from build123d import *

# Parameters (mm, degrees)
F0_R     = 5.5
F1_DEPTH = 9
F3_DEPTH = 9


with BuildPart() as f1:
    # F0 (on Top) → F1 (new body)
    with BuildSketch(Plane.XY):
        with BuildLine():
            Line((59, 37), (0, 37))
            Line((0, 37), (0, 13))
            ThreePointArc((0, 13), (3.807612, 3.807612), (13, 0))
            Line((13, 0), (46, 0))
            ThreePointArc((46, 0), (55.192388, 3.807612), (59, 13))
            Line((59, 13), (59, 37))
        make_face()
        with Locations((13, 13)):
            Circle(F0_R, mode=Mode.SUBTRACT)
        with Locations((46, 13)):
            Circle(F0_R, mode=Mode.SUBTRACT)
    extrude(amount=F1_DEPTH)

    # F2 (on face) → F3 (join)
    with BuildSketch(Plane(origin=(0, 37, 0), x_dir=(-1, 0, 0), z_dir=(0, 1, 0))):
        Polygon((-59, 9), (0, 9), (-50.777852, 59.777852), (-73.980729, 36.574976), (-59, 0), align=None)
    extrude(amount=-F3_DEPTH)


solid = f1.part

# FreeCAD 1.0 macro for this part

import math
import FreeCAD as App
import Part
import Sketcher

V = App.Vector
Q = App.Units.Quantity

doc = App.newDocument("Part")
body = doc.addObject("PartDesign::Body", "Body")

sketch1 = body.newObject("Sketcher::SketchObject", "Sketch")
sketch1.AttachmentSupport = (doc.getObject("XY_Plane"), [""])
sketch1.MapMode = "FlatFace"
sketch1.addGeometry([
    Part.LineSegment(V(59, 37, 0), V(0, 37, 0)),
    Part.LineSegment(V(0, 37, 0), V(0, 13, 0)),
    Part.ArcOfCircle(Part.Circle(V(13, 13, 0), V(0, 0, 1), 13), math.radians(-180), math.radians(-90)),
    Part.LineSegment(V(13, 0, 0), V(46, 0, 0)),
    Part.ArcOfCircle(Part.Circle(V(46, 13, 0), V(0, 0, 1), 13), math.radians(-90), math.radians(0)),
    Part.LineSegment(V(59, 13, 0), V(59, 37, 0)),
    Part.Circle(V(13, 13, 0), V(0, 0, 1), 6),
    Part.Circle(V(46, 13, 0), V(0, 0, 1), 6),
], False)
sketch1.addConstraint([
    Sketcher.Constraint("Coincident", 0, 2, 1, 1),
    Sketcher.Constraint("Tangent", 1, 2, 2, 1),
    Sketcher.Constraint("Tangent", 2, 2, 3, 1),
    Sketcher.Constraint("Tangent", 3, 2, 4, 1),
    Sketcher.Constraint("Tangent", 4, 2, 5, 1),
    Sketcher.Constraint("Coincident", 5, 2, 0, 1),
    Sketcher.Constraint("Horizontal", 0),
    Sketcher.Constraint("Vertical", 1),
    Sketcher.Constraint("Horizontal", 3),
    Sketcher.Constraint("Vertical", 5),
    Sketcher.Constraint("Coincident", 6, 3, 2, 3),
    Sketcher.Constraint("Coincident", 7, 3, 4, 3),
    Sketcher.Constraint("Equal", 2, 4),
    Sketcher.Constraint("Equal", 6, 7),
    Sketcher.Constraint("PointOnObject", 0, 2, -2),
    Sketcher.Constraint("PointOnObject", 2, 2, -1),
    Sketcher.Constraint("Diameter", 6, Q("11 mm")),
    Sketcher.Constraint("Radius", 2, Q("13.000001 mm")),
    Sketcher.Constraint("DistanceX", 0, 2, 0, 1, Q("59 mm")),
    Sketcher.Constraint("DistanceY", 1, 2, 1, 1, Q("24 mm")),
])
pad1 = body.newObject("PartDesign::Pad", "Pad")
pad1.Profile = sketch1
pad1.Length = 9

sketch2 = body.newObject("Sketcher::SketchObject", "Sketch001")
sketch2.AttachmentSupport = (doc.getObject("XZ_Plane"), [""])
sketch2.MapMode = "FlatFace"
sketch2.AttachmentOffset = App.Placement(V(0, 0, -37), App.Rotation())
sketch2.addGeometry([
    Part.LineSegment(V(59, 9, 0), V(0, 9, 0)),
    Part.LineSegment(V(0, 9, 0), V(51, 60, 0)),
    Part.LineSegment(V(51, 60, 0), V(74, 37, 0)),
    Part.LineSegment(V(74, 37, 0), V(59, 0, 0)),
    Part.LineSegment(V(59, 0, 0), V(59, 9, 0)),
], False)
sketch2.addConstraint([
    Sketcher.Constraint("Coincident", 0, 2, 1, 1),
    Sketcher.Constraint("Coincident", 1, 2, 2, 1),
    Sketcher.Constraint("Coincident", 2, 2, 3, 1),
    Sketcher.Constraint("Coincident", 3, 2, 4, 1),
    Sketcher.Constraint("Coincident", 4, 2, 0, 1),
    Sketcher.Constraint("Horizontal", 0),
    Sketcher.Constraint("Vertical", 4),
    Sketcher.Constraint("PointOnObject", 0, 2, -2),
    Sketcher.Constraint("PointOnObject", 3, 2, -1),
    Sketcher.Constraint("Perpendicular", 1, 2),
    Sketcher.Constraint("DistanceX", 0, 2, 0, 1, Q("59 mm")),
    Sketcher.Constraint("DistanceY", 4, 1, 4, 2, Q("9 mm")),
    Sketcher.Constraint("Angle", 1, Q("45 deg")),
    Sketcher.Constraint("DistanceX", -1, 1, 2, 2, Q("73.980729 mm")),
    Sketcher.Constraint("Distance", 1, Q("71.810727 mm")),
])
pad2 = body.newObject("PartDesign::Pad", "Pad001")
pad2.Profile = sketch2
pad2.Length = 9

doc.recompute()
